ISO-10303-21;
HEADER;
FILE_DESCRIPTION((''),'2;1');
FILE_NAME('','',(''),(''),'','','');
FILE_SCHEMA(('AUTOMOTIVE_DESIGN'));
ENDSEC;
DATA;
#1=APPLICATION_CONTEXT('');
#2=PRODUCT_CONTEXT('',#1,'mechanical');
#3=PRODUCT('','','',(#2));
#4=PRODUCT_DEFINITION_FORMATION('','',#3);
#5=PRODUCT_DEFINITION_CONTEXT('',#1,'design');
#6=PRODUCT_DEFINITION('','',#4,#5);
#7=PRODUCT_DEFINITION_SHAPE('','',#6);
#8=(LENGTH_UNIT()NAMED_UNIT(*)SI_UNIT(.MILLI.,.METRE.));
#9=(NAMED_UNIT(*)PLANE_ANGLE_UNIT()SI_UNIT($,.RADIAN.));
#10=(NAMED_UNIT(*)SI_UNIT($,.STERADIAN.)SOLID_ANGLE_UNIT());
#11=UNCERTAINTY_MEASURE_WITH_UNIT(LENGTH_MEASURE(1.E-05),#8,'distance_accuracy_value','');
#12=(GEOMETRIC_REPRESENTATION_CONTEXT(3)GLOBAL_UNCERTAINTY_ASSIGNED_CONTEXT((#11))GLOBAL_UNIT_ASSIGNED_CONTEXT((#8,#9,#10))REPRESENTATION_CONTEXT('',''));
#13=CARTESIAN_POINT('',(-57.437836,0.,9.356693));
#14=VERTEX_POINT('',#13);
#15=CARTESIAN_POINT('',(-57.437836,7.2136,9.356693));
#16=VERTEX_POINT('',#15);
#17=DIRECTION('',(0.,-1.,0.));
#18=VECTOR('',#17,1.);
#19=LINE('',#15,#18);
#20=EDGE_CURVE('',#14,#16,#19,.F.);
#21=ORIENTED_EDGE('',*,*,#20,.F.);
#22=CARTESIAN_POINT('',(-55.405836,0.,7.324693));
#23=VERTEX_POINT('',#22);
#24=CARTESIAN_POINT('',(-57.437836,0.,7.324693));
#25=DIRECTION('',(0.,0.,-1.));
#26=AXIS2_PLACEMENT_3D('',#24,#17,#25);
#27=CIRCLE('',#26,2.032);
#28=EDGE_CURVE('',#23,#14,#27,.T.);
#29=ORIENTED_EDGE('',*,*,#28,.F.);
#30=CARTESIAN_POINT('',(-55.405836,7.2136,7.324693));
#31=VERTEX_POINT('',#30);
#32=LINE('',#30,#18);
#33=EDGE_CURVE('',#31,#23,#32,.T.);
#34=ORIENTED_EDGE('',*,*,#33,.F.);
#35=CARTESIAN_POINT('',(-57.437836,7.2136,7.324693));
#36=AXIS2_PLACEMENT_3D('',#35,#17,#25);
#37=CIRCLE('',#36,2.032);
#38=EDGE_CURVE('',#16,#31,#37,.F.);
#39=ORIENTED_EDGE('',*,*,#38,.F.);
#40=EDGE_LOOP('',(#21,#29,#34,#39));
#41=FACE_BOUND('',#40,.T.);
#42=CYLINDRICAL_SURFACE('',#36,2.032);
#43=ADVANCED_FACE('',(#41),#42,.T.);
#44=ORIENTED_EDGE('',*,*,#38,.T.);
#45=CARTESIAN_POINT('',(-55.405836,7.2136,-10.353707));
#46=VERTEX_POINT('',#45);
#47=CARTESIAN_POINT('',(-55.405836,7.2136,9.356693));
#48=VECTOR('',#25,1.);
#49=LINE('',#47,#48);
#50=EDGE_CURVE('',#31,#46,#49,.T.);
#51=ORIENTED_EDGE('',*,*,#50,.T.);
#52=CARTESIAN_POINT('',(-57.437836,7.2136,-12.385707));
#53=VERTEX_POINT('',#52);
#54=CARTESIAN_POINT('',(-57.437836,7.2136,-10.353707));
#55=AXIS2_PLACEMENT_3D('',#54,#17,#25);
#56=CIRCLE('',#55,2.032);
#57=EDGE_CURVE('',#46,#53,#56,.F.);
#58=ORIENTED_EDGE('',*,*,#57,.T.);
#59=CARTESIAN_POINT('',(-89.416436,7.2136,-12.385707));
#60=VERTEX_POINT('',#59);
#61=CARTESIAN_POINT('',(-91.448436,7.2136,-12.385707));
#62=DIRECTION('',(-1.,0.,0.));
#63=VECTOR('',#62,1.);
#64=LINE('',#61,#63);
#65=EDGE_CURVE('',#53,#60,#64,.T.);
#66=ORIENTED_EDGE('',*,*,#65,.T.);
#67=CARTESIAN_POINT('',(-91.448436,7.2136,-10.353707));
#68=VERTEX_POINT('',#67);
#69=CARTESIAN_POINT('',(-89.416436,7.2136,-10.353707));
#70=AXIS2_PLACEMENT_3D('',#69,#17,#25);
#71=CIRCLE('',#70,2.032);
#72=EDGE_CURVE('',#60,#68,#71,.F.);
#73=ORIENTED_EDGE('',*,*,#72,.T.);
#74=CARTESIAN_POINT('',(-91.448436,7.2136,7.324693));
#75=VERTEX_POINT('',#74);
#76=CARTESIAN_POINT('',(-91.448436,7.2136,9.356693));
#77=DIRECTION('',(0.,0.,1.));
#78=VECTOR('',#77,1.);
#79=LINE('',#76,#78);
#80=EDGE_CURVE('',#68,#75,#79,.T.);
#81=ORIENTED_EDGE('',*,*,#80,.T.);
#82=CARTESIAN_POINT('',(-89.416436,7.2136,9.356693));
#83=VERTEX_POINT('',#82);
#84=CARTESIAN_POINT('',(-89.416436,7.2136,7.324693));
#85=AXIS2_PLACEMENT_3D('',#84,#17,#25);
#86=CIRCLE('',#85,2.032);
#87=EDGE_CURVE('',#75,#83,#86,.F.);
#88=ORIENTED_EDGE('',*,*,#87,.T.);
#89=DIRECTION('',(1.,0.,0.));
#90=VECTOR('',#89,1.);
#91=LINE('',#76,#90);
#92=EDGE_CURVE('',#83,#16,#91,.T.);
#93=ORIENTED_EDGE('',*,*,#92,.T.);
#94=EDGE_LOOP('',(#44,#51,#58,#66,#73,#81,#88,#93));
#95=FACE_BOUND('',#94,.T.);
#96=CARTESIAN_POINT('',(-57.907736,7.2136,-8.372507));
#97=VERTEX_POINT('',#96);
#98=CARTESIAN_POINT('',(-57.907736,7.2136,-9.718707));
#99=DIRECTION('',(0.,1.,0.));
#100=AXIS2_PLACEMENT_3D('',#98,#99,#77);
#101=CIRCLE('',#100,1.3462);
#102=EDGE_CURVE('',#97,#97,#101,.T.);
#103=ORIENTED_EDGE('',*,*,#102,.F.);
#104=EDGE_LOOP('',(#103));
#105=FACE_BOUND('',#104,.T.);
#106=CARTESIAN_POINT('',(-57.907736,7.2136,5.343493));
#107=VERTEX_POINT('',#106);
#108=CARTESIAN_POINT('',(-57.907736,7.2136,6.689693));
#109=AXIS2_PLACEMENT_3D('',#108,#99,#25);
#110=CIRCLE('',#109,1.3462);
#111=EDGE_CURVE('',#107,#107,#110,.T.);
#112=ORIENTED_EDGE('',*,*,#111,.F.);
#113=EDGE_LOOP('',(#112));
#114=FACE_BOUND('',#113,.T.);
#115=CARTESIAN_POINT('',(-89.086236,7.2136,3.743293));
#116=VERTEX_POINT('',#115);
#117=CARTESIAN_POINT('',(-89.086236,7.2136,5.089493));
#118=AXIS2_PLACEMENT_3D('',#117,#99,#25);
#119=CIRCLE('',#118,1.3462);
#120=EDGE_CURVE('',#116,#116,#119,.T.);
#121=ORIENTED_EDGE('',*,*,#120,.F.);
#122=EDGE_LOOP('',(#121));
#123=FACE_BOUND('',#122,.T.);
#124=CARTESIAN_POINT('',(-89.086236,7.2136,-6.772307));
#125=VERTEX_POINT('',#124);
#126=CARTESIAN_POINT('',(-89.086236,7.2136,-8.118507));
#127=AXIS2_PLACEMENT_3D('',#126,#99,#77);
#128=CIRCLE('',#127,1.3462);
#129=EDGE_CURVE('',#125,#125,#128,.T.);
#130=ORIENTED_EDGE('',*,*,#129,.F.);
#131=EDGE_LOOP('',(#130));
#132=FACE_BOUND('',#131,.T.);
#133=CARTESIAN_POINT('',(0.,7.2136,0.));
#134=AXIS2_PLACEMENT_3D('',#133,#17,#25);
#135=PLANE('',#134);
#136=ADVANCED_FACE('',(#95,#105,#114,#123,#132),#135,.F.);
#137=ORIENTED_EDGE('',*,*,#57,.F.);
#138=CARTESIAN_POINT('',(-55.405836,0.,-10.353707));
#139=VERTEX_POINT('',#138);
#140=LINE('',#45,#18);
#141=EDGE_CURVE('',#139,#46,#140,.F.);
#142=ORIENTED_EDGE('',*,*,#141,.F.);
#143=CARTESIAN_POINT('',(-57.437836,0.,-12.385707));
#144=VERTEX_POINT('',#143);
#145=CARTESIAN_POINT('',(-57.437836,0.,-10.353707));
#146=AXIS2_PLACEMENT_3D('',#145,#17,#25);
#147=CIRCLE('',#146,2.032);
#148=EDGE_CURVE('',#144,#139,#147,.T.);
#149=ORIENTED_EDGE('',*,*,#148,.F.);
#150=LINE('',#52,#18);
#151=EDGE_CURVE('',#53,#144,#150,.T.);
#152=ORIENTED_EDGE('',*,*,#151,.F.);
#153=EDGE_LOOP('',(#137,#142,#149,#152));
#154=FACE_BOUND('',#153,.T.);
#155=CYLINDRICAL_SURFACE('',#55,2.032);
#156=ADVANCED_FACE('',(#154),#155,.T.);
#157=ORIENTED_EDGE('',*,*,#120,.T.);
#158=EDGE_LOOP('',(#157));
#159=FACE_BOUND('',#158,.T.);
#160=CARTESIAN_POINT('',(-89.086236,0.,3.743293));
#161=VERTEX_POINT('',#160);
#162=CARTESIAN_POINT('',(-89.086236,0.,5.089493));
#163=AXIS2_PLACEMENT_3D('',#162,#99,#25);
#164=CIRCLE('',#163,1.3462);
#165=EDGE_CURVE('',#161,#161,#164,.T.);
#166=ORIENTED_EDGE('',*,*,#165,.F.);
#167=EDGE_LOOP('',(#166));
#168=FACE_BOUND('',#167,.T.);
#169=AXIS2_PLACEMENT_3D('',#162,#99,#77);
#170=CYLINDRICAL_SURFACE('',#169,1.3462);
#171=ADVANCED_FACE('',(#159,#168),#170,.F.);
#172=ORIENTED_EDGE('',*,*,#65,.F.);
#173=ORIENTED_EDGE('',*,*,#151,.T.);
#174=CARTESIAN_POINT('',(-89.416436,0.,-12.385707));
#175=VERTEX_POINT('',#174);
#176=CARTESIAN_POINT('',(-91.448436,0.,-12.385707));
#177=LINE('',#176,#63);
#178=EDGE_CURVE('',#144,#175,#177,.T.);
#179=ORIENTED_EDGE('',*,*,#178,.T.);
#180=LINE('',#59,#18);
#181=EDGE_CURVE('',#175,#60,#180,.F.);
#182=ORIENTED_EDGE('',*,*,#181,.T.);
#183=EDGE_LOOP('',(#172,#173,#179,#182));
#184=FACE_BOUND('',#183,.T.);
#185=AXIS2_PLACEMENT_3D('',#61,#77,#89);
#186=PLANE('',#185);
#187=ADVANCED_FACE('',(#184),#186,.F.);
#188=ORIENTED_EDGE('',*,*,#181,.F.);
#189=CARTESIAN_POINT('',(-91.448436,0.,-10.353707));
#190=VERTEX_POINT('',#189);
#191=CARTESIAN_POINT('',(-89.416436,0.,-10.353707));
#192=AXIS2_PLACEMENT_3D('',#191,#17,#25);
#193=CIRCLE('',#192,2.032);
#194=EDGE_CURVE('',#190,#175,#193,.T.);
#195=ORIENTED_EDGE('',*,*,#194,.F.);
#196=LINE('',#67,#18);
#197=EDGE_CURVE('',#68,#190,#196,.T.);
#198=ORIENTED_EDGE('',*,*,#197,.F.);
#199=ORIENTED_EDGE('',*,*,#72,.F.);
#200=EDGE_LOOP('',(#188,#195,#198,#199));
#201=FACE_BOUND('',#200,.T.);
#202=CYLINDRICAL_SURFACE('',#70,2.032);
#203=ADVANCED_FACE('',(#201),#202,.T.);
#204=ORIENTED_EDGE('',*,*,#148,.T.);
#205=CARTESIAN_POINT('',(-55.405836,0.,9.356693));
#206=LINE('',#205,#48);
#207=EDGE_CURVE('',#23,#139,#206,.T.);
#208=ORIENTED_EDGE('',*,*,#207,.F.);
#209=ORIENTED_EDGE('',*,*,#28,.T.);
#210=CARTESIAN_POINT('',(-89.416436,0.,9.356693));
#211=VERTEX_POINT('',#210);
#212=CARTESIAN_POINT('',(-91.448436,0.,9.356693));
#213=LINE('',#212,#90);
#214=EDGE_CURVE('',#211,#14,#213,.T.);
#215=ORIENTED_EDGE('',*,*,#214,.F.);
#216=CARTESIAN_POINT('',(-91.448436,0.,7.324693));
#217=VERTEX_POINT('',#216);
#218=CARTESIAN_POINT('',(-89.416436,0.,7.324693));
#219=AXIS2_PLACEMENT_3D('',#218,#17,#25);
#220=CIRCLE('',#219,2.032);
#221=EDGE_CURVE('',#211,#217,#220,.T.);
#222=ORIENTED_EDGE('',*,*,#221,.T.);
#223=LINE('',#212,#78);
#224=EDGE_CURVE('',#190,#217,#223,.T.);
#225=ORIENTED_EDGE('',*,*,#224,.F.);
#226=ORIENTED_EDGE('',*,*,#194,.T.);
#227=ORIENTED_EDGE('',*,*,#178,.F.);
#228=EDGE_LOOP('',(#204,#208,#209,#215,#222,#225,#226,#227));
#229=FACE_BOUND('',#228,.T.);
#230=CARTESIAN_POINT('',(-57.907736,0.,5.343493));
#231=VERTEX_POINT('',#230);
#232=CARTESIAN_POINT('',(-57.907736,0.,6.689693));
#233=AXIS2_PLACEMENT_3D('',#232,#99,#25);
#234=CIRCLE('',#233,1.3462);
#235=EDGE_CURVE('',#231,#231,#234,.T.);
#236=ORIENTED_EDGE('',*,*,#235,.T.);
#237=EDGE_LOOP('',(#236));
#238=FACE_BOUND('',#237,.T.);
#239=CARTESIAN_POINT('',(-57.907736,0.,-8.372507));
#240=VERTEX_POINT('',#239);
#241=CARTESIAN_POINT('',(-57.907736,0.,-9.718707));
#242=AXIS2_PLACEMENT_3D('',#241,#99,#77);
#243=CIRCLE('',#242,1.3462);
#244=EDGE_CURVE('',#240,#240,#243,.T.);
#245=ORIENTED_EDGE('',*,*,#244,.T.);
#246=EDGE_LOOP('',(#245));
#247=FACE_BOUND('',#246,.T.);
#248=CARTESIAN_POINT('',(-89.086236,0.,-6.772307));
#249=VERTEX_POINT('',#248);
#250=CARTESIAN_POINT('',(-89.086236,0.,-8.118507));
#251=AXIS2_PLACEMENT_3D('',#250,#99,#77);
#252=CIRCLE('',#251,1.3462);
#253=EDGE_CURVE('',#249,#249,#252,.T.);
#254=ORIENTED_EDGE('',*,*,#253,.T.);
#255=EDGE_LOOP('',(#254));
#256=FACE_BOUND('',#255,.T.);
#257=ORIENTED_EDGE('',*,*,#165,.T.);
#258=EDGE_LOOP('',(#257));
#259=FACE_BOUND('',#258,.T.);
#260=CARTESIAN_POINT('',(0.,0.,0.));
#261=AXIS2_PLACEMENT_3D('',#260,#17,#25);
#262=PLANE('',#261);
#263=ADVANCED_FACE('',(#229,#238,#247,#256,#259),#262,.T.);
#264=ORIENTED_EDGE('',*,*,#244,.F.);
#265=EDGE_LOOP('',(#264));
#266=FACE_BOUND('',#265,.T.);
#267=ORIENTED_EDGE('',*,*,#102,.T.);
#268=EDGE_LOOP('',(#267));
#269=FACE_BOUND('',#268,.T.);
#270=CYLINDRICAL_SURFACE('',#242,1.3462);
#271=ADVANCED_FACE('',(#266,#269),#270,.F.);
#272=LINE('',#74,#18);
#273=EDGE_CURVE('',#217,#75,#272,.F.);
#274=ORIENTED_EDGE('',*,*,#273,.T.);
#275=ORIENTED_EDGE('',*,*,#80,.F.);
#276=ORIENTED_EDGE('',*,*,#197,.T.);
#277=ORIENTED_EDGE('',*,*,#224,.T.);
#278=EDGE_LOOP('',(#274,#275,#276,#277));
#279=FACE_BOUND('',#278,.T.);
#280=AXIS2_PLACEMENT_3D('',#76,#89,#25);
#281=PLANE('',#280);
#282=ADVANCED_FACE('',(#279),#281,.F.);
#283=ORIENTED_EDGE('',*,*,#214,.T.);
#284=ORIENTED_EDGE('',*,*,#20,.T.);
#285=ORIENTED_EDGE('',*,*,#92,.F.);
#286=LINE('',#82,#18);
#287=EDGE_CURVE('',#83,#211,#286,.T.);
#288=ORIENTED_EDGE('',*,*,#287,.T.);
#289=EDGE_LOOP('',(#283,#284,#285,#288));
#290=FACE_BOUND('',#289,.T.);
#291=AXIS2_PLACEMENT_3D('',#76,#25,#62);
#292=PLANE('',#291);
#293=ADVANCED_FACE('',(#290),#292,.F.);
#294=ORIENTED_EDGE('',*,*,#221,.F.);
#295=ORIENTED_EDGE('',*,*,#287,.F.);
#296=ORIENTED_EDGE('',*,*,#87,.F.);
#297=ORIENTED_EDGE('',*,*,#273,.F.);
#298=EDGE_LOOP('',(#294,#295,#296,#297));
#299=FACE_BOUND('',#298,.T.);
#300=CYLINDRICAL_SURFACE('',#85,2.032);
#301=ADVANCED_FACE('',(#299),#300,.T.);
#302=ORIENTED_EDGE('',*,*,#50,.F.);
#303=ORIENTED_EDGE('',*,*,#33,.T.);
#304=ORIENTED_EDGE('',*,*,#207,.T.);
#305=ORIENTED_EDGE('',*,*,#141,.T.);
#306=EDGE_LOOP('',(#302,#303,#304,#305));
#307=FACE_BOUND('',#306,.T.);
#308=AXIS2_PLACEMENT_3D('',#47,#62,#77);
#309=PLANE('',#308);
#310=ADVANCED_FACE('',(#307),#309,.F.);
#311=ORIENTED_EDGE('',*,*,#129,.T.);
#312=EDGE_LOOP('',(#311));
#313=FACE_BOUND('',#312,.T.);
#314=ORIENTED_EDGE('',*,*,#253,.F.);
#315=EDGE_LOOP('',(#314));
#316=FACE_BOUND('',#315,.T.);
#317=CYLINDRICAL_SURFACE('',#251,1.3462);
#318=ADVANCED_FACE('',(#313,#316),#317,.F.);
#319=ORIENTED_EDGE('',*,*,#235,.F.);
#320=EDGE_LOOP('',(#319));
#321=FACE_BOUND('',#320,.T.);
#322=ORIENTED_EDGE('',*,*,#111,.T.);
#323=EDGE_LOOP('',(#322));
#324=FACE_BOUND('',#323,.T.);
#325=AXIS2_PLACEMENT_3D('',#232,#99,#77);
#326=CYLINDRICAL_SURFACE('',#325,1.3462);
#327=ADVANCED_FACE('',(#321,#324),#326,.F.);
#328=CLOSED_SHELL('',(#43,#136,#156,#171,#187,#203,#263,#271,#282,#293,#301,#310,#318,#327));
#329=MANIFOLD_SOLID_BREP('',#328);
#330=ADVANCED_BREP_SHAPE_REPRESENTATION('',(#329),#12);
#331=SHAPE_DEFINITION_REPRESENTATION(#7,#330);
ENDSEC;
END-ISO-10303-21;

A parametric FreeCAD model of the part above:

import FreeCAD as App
import Part
import Sketcher
Q = App.Units.Quantity


def edges_at(feature, points):
    """Names of the edges that pass closest to the given points."""
    edges = feature.Shape.Edges
    near = lambda p: min(range(len(edges)), key=lambda i: edges[i].distToShape(Part.Vertex(*p))[0])
    return sorted({f"Edge{near(p) + 1}" for p in points})

doc = App.newDocument("Part")
params = doc.addObject("Spreadsheet::Sheet", "Params")
for row, (alias, value) in enumerate([
    ("sketch1_width", "1.419 in"),
    ("sketch1_height", "0.856 in"),
    ("pad1_length", "0.284 in"),
    ("sketch2_diameter", "0.106 in"),
    ("pocket1_length", "0.284 in"),
    ("fillet_radius", "0.08 in"),
], start=1):
    params.set(f"A{row}", alias)
    params.set(f"B{row}", "=" + value)
    params.setAlias(f"B{row}", alias)

body = doc.addObject("PartDesign::Body", "Body")

# Sketch on XZ plane
sketch1 = doc.addObject("Sketcher::SketchObject", "Sketch")
body.addObject(sketch1)
sketch1.AttachmentSupport = (doc.XZ_Plane, [""])
sketch1.MapMode = "FlatFace"
sketch1.addGeometry([
    Part.LineSegment(App.Vector(-91.448436, -12.385707, 0), App.Vector(-91.448436, 9.356693, 0)),
    Part.LineSegment(App.Vector(-91.448436, 9.356693, 0), App.Vector(-55.405836, 9.356693, 0)),
    Part.LineSegment(App.Vector(-55.405836, 9.356693, 0), App.Vector(-55.405836, -12.385707, 0)),
    Part.LineSegment(App.Vector(-55.405836, -12.385707, 0), App.Vector(-91.448436, -12.385707, 0)),
], False)
sketch1.addConstraint([
    Sketcher.Constraint("Coincident", 0, 2, 1, 1),
    Sketcher.Constraint("Coincident", 1, 2, 2, 1),
    Sketcher.Constraint("Coincident", 2, 2, 3, 1),
    Sketcher.Constraint("Coincident", 3, 2, 0, 1),
    Sketcher.Constraint("Vertical", 0),
    Sketcher.Constraint("Horizontal", 1),
    Sketcher.Constraint("Vertical", 2),
    Sketcher.Constraint("Horizontal", 3),
    Sketcher.Constraint("DistanceX", 1, 1, 1, 2, Q("1.419 in")),
    Sketcher.Constraint("DistanceY", 0, 1, 0, 2, Q("0.856 in")),
    Sketcher.Constraint("DistanceX", 0, 2, -1, 1, Q("91.448436 mm")),
    Sketcher.Constraint("DistanceY", -1, 1, 0, 2, Q("9.356693 mm")),
])
sketch1.setExpression("Constraints[8]", "Params.sketch1_width")
sketch1.setExpression("Constraints[9]", "Params.sketch1_height")
pad1 = doc.addObject("PartDesign::Pad", "Pad")
body.addObject(pad1)
pad1.Profile = sketch1
pad1.setExpression("Length", "Params.pad1_length")
pad1.Reversed = True

# Sketch on XZ plane
sketch2 = doc.addObject("Sketcher::SketchObject", "Sketch001")
body.addObject(sketch2)
sketch2.AttachmentSupport = (doc.XZ_Plane, [""])
sketch2.MapMode = "FlatFace"
sketch2.AttachmentOffset = App.Placement(App.Vector(0, 0, -0.284 * 25.4), App.Rotation())
sketch2.addGeometry([
    Part.Circle(App.Vector(-57.907736, -9.718707, 0), App.Vector(0, 0, 1), 1.3462),
    Part.Circle(App.Vector(-89.086236, -8.118507, 0), App.Vector(0, 0, 1), 1.3462),
    Part.Circle(App.Vector(-57.907736, 6.689693, 0), App.Vector(0, 0, 1), 1.3462),
    Part.Circle(App.Vector(-89.086236, 5.089493, 0), App.Vector(0, 0, 1), 1.3462),
], False)
sketch2.addConstraint([
    Sketcher.Constraint("Equal", 0, 1),
    Sketcher.Constraint("Equal", 1, 2),
    Sketcher.Constraint("Equal", 2, 3),
    Sketcher.Constraint("Vertical", 0, 3, 2, 3),
    Sketcher.Constraint("Vertical", 1, 3, 3, 3),
    Sketcher.Constraint("Diameter", 0, Q("0.106 in")),
    Sketcher.Constraint("DistanceY", 1, 3, 3, 3, Q("0.52 in")),
    Sketcher.Constraint("DistanceY", 0, 3, 1, 3, Q("0.063 in")),
    Sketcher.Constraint("DistanceY", 0, 3, 2, 3, Q("0.646 in")),
    Sketcher.Constraint("DistanceX", 1, 3, 0, 3, Q("1.2275 in")),
    Sketcher.Constraint("DistanceX", 0, 3, -1, 1, Q("57.907736 mm")),
    Sketcher.Constraint("DistanceY", 0, 3, -1, 1, Q("9.718707 mm")),
])
sketch2.setExpression("Constraints[5]", "Params.sketch2_diameter")
pocket1 = doc.addObject("PartDesign::Pocket", "Pocket")
body.addObject(pocket1)
pocket1.Profile = sketch2
pocket1.setExpression("Length", "Params.pocket1_length")
pocket1.Reversed = True
doc.recompute()

fillet = doc.addObject("PartDesign::Fillet", "Fillet")
body.addObject(fillet)
fillet.Base = (pocket1, edges_at(pocket1, [
    (-91.448, 3.607, -12.386),
    (-55.406, 3.607, -12.386),
    (-55.406, 3.607, 9.357),
    (-91.448, 3.607, 9.357),
]))
fillet.setExpression("Radius", "Params.fillet_radius")

doc.recompute()
